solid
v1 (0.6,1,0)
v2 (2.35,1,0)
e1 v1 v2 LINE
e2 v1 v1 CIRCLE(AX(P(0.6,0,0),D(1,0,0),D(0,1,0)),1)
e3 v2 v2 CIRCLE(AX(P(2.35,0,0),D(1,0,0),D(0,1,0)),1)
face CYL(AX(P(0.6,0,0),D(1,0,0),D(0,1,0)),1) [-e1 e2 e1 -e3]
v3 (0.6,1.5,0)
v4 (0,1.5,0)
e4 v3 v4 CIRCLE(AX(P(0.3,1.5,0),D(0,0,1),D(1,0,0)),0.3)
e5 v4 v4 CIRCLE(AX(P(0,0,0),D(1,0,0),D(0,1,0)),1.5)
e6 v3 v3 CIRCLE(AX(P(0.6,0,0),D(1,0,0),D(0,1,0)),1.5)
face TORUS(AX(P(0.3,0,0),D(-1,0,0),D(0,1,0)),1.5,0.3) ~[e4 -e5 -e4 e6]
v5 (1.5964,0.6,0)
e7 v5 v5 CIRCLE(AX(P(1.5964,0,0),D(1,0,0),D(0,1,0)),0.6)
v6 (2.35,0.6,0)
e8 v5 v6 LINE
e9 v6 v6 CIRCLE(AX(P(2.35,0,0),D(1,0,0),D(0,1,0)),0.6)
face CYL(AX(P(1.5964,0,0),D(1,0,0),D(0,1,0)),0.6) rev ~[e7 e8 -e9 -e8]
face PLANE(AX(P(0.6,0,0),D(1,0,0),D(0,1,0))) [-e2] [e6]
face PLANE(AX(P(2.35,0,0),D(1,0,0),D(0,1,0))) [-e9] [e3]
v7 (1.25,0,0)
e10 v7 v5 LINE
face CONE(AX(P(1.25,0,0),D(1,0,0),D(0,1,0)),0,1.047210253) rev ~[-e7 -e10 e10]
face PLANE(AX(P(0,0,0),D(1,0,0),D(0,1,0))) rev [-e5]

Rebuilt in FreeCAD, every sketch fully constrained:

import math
import FreeCAD as App
import Part
import Sketcher
Q = App.Units.Quantity

doc = App.newDocument("Part")
body = doc.addObject("PartDesign::Body", "Body")

# Sketch on XY plane
sketch1 = body.newObject("Sketcher::SketchObject", "Sketch")
sketch1.AttachmentSupport = (doc.getObject("XY_Plane"), [""])
sketch1.MapMode = "FlatFace"
sketch1.addGeometry([
    Part.LineSegment(App.Vector(0.6, 1, 0), App.Vector(0.6, 1.5, 0)),  # 0
    Part.ArcOfCircle(Part.Circle(App.Vector(0.3, 1.5, 0), App.Vector(0, 0, 1), 0.3), math.radians(0), math.radians(180)),  # 1
    Part.LineSegment(App.Vector(0, 1.5, 0), App.Vector(0, 0, 0)),  # 2
    Part.LineSegment(App.Vector(0, 0, 0), App.Vector(1.25, 0, 0)),  # 3
    Part.LineSegment(App.Vector(1.25, 0, 0), App.Vector(1.6, 0.6, 0)),  # 4
    Part.LineSegment(App.Vector(1.6, 0.6, 0), App.Vector(2.35, 0.6, 0)),  # 5
    Part.LineSegment(App.Vector(2.35, 0.6, 0), App.Vector(2.35, 1, 0)),  # 6
    Part.LineSegment(App.Vector(2.35, 1, 0), App.Vector(0.6, 1, 0)),  # 7
], False)
sketch1.addConstraint([
    Sketcher.Constraint("Tangent", 0, 2, 1, 1),
    Sketcher.Constraint("Tangent", 1, 2, 2, 1),
    Sketcher.Constraint("Coincident", 2, 2, 3, 1),
    Sketcher.Constraint("Coincident", 3, 2, 4, 1),
    Sketcher.Constraint("Coincident", 4, 2, 5, 1),
    Sketcher.Constraint("Coincident", 5, 2, 6, 1),
    Sketcher.Constraint("Coincident", 6, 2, 7, 1),
    Sketcher.Constraint("Coincident", 7, 2, 0, 1),
    Sketcher.Constraint("Vertical", 0),
    Sketcher.Constraint("Vertical", 2),
    Sketcher.Constraint("Horizontal", 3),
    Sketcher.Constraint("Horizontal", 5),
    Sketcher.Constraint("Vertical", 6),
    Sketcher.Constraint("Horizontal", 7),
    Sketcher.Constraint("Coincident", 2, 2, -1, 1),
    Sketcher.Constraint("Radius", 1, Q("0.3 mm")),
    Sketcher.Constraint("DistanceX", 3, 1, 3, 2, Q("1.25 mm")),
    Sketcher.Constraint("DistanceX", 7, 2, 7, 1, Q("1.75 mm")),
    Sketcher.Constraint("DistanceY", -1, 1, 4, 2, Q("0.6 mm")),
    Sketcher.Constraint("Angle", 4, Q("60.0007 deg")),
    Sketcher.Constraint("DistanceY", 0, 1, 0, 2, Q("0.5 mm")),
    Sketcher.Constraint("DistanceY", 2, 2, 2, 1, Q("1.5 mm")),
])
revolution = body.newObject("PartDesign::Revolution", "Revolution")
revolution.Profile = sketch1
revolution.ReferenceAxis = (sketch1, ["H_Axis"])
revolution.Angle = 360

doc.recompute()
